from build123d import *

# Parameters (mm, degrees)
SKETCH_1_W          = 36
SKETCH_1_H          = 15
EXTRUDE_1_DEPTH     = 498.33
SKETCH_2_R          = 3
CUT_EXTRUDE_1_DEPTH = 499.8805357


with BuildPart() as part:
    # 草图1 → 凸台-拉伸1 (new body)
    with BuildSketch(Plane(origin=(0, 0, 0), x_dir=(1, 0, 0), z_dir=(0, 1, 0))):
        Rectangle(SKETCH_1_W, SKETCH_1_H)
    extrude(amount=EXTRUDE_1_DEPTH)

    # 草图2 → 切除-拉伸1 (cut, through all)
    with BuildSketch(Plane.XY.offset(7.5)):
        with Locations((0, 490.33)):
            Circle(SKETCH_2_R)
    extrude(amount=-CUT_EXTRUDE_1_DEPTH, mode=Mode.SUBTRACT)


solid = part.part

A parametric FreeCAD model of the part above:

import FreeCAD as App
import Part
import Sketcher

V = App.Vector


def add_polygon(sketch, points):
    """Adds a closed chain of lines whose ends are joined by coincident constraints."""
    first, n = sketch.GeometryCount, len(points)
    for a, b in zip(points, points[1:] + points[:1]):
        sketch.addGeometry(Part.LineSegment(App.Vector(*a, 0), App.Vector(*b, 0)), False)
    for i in range(n):
        sketch.addConstraint(Sketcher.Constraint("Coincident", first + i, 2, first + (i + 1) % n, 1))

doc = App.newDocument("Part")
body = doc.addObject("PartDesign::Body", "Body")

sketch1 = doc.addObject("Sketcher::SketchObject", "Sketch")
body.addObject(sketch1)
sketch1.AttachmentSupport = (doc.XZ_Plane, [""])
sketch1.MapMode = "FlatFace"
add_polygon(sketch1, [(-18, -8), (-18, 8), (18, 8), (18, -8)])
sketch1.addConstraint([
    Sketcher.Constraint("Vertical", 0),
    Sketcher.Constraint("Horizontal", 1),
    Sketcher.Constraint("Vertical", 2),
    Sketcher.Constraint("Horizontal", 3),
    Sketcher.Constraint("Symmetric", 0, 2, 2, 2, -1, 1),
    Sketcher.Constraint("DistanceX", 1, 1, 1, 2, 36.0),
    Sketcher.Constraint("DistanceY", 0, 1, 0, 2, 15.0),
])
pad1 = doc.addObject("PartDesign::Pad", "Pad")
body.addObject(pad1)
pad1.Profile = sketch1
pad1.Length = 498.33
pad1.Reversed = True

sketch2 = doc.addObject("Sketcher::SketchObject", "Sketch001")
body.addObject(sketch2)
sketch2.AttachmentSupport = (doc.XY_Plane, [""])
sketch2.MapMode = "FlatFace"
sketch2.AttachmentOffset = App.Placement(V(0, 0, 7.5), App.Rotation())
sketch2.addGeometry(Part.Circle(V(0, 490.3, 0), V(0, 0, 1), 3), False)
sketch2.addConstraint([
    Sketcher.Constraint("PointOnObject", 0, 3, -2),
    Sketcher.Constraint("Diameter", 0, 6.0),
    Sketcher.Constraint("DistanceY", -1, 1, 0, 3, 490.33),
])
pocket1 = doc.addObject("PartDesign::Pocket", "Pocket")
body.addObject(pocket1)
pocket1.Profile = sketch2
pocket1.Type = "ThroughAll"

doc.recompute()
